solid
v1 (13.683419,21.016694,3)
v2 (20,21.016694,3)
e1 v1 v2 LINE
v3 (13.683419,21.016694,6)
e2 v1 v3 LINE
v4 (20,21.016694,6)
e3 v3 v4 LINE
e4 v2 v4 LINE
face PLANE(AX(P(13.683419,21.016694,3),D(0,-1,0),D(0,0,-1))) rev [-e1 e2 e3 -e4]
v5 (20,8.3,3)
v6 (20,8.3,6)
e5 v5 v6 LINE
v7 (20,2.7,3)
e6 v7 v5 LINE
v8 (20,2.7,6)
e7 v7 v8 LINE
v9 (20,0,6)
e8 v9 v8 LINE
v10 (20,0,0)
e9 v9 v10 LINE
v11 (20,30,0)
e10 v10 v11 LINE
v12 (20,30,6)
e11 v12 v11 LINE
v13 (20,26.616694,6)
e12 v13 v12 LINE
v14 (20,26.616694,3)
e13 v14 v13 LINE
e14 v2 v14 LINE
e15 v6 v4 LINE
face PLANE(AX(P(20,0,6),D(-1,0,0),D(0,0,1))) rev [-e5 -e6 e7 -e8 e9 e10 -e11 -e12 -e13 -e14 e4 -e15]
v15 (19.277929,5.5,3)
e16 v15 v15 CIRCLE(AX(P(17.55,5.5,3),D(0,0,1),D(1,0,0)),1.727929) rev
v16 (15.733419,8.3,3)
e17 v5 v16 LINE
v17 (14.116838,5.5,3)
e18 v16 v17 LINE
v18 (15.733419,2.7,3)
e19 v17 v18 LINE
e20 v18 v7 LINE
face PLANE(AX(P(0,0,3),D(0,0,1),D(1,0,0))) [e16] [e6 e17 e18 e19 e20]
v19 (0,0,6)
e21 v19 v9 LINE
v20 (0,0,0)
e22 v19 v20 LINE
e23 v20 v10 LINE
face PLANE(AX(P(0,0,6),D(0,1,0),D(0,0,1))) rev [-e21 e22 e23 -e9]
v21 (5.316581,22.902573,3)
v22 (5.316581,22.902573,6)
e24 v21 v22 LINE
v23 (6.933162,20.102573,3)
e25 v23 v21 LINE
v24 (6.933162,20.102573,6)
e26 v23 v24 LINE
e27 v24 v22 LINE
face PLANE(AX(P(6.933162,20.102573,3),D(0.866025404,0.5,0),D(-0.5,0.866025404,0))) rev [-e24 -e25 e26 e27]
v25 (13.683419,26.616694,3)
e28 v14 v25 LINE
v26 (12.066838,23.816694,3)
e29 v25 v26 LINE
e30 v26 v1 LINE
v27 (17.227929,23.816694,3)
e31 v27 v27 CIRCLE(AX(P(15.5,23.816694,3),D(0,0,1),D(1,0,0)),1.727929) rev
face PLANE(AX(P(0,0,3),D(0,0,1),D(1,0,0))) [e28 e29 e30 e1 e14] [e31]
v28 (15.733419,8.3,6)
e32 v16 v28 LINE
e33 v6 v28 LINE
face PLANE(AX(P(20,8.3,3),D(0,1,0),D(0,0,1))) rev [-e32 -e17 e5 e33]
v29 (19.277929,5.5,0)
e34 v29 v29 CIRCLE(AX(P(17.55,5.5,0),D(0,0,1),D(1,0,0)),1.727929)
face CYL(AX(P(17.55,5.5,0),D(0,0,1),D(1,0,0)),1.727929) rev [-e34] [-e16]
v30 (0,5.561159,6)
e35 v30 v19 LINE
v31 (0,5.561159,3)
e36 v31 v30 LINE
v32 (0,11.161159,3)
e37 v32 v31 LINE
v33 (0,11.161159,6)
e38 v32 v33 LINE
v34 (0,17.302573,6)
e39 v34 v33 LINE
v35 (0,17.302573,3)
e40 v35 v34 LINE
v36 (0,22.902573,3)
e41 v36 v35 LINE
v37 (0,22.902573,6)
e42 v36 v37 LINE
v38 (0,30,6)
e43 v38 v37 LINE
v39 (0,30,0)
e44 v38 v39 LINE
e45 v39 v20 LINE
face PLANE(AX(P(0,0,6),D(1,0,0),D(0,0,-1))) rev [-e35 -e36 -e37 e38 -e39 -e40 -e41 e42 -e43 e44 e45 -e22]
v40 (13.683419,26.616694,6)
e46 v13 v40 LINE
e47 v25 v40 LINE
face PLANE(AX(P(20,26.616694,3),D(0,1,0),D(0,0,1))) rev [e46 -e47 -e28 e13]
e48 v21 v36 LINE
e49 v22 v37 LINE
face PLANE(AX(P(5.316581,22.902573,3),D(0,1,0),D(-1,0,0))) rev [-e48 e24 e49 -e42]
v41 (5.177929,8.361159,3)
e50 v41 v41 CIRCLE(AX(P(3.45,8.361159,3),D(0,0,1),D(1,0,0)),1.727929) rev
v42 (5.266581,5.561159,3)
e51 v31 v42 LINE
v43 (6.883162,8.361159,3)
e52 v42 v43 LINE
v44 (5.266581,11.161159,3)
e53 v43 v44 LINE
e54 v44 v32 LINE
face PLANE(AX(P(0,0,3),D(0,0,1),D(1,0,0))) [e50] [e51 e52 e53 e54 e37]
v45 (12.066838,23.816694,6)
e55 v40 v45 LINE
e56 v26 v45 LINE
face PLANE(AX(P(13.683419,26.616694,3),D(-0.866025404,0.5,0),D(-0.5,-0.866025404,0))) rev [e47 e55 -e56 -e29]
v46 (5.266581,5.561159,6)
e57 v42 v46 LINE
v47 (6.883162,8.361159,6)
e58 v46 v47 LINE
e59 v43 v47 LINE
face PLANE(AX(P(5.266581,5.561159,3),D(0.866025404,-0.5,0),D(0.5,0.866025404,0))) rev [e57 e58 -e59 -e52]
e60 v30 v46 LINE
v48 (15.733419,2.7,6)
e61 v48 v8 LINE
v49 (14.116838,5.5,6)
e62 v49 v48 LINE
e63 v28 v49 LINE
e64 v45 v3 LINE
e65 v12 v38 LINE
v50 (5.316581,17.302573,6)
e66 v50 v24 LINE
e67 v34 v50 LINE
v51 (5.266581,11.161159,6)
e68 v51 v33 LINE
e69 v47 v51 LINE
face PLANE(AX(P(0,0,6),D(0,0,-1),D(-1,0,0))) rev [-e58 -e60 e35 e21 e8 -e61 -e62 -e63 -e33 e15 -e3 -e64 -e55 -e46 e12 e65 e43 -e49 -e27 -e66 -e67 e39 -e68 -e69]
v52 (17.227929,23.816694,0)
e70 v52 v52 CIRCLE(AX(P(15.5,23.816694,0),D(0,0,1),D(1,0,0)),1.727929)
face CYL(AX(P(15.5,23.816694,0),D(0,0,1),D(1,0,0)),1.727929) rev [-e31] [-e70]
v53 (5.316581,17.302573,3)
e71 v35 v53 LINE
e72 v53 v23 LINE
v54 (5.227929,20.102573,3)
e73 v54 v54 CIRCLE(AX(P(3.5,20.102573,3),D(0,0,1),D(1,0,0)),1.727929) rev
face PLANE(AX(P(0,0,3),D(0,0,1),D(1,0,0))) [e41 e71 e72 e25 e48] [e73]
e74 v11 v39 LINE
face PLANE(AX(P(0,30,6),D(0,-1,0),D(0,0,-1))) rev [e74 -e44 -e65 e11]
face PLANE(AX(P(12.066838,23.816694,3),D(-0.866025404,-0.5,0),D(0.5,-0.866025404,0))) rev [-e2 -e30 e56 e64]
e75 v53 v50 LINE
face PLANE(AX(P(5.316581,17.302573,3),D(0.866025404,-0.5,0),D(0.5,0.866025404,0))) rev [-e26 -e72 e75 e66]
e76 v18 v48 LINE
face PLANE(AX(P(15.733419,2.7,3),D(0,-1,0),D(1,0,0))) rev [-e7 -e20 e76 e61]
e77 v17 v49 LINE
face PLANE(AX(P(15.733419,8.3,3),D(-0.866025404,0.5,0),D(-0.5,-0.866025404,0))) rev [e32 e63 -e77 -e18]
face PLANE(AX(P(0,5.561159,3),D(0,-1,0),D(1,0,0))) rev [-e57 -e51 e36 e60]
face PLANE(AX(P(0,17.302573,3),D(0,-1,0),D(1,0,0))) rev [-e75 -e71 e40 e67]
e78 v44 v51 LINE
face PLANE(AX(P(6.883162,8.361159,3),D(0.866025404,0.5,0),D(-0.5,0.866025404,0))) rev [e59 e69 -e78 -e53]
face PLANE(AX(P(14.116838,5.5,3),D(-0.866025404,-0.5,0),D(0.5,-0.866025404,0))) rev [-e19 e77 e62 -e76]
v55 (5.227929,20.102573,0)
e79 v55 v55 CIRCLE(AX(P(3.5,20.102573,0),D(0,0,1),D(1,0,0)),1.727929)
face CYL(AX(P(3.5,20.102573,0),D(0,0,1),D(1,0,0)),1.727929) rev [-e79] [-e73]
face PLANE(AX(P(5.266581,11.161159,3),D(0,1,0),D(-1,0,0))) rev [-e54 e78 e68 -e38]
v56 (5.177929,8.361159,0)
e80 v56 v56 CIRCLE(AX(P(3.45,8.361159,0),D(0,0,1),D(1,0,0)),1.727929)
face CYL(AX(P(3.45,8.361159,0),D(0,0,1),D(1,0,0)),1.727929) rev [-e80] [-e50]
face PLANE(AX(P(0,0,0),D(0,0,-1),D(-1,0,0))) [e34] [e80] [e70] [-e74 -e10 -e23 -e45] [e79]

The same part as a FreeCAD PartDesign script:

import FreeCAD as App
import Part
import Sketcher
Q = App.Units.Quantity


def add_polygon(sketch, points):
    """Adds a closed chain of lines whose ends are joined by coincident constraints."""
    first, n = sketch.GeometryCount, len(points)
    for a, b in zip(points, points[1:] + points[:1]):
        sketch.addGeometry(Part.LineSegment(App.Vector(*a, 0), App.Vector(*b, 0)), False)
    for i in range(n):
        sketch.addConstraint(Sketcher.Constraint("Coincident", first + i, 2, first + (i + 1) % n, 1))

doc = App.newDocument("Part")
body = doc.addObject("PartDesign::Body", "Body")

# Sketch on XY plane
sketch1 = body.newObject("Sketcher::SketchObject", "Sketch")
sketch1.AttachmentSupport = (doc.getObject("XY_Plane"), [""])
sketch1.MapMode = "FlatFace"
add_polygon(sketch1, [(0, 30), (0, 0), (20, 0), (20, 30)])  # lines 0-3
sketch1.addConstraint([
    Sketcher.Constraint("Vertical", 0),
    Sketcher.Constraint("Horizontal", 1),
    Sketcher.Constraint("Vertical", 2),
    Sketcher.Constraint("Horizontal", 3),
    Sketcher.Constraint("Coincident", 0, 2, -1, 1),
    Sketcher.Constraint("DistanceX", 1, 1, 1, 2, 20.0),
    Sketcher.Constraint("DistanceY", 0, 2, 0, 1, 30.0),
])
pad1 = body.newObject("PartDesign::Pad", "Pad")
pad1.Profile = sketch1
pad1.Length = 6

# Sketch on XY plane
sketch2 = body.newObject("Sketcher::SketchObject", "Sketch001")
sketch2.AttachmentSupport = (doc.getObject("XY_Plane"), [""])
sketch2.MapMode = "FlatFace"
sketch2.AttachmentOffset = App.Placement(App.Vector(0, 0, 6), App.Rotation())
sketch2.addGeometry([
    Part.Circle(App.Vector(15.5, 23.8, 0), App.Vector(0, 0, 1), 1.7),
    Part.Circle(App.Vector(3.5, 20.1, 0), App.Vector(0, 0, 1), 1.7),
    Part.Circle(App.Vector(17.6, 5.5, 0), App.Vector(0, 0, 1), 1.7),
    Part.Circle(App.Vector(3.5, 8.4, 0), App.Vector(0, 0, 1), 1.7),
], False)
sketch2.addConstraint([
    Sketcher.Constraint("Equal", 0, 1),
    Sketcher.Constraint("Equal", 1, 2),
    Sketcher.Constraint("Equal", 2, 3),
    Sketcher.Constraint("DistanceX", 1, 3, 0, 3, 12.0),
    Sketcher.Constraint("DistanceX", -1, 1, 0, 3, 15.5),
    Sketcher.Constraint("DistanceY", -1, 1, 2, 3, 5.5),
    Sketcher.Constraint("DistanceX", 3, 3, 2, 3, 14.1),
    Sketcher.Constraint("Diameter", 0, 3.455859),
    Sketcher.Constraint("DistanceX", -1, 1, 2, 3, 17.55),
    Sketcher.Constraint("DistanceY", -1, 1, 3, 3, 8.361159),
    Sketcher.Constraint("DistanceY", 1, 3, 0, 3, 3.714121),
    Sketcher.Constraint("DistanceY", -1, 1, 0, 3, 23.816694),
])
pocket1 = body.newObject("PartDesign::Pocket", "Pocket")
pocket1.Profile = sketch2
pocket1.Type = "ThroughAll"

# Sketch on XY plane
sketch3 = body.newObject("Sketcher::SketchObject", "Sketch002")
sketch3.AttachmentSupport = (doc.getObject("XY_Plane"), [""])
sketch3.MapMode = "FlatFace"
sketch3.AttachmentOffset = App.Placement(App.Vector(0, 0, 6), App.Rotation())
add_polygon(sketch3, [(20, 26.6), (13.7, 26.6), (12.1, 23.8), (13.7, 21), (20, 21)])  # lines 0-4
add_polygon(sketch3, [(6.9, 20.1), (5.3, 22.9), (0, 22.9), (0, 17.3), (5.3, 17.3)])  # lines 5-9
add_polygon(sketch3, [(6.9, 8.4), (5.3, 11.2), (0, 11.2), (0, 5.6), (5.3, 5.6)])  # lines 10-14
add_polygon(sketch3, [(14.1, 5.5), (15.7, 2.7), (20, 2.7), (20, 8.3), (15.7, 8.3)])  # lines 15-19
sketch3.addConstraint([
    Sketcher.Constraint("Horizontal", 0),
    Sketcher.Constraint("Horizontal", 3),
    Sketcher.Constraint("Vertical", 4),
    Sketcher.Constraint("Horizontal", 6),
    Sketcher.Constraint("Vertical", 7),
    Sketcher.Constraint("Horizontal", 8),
    Sketcher.Constraint("Horizontal", 11),
    Sketcher.Constraint("Vertical", 12),
    Sketcher.Constraint("Horizontal", 13),
    Sketcher.Constraint("Horizontal", 16),
    Sketcher.Constraint("Vertical", 17),
    Sketcher.Constraint("Horizontal", 18),
    Sketcher.Constraint("PointOnObject", 6, 2, -2),
    Sketcher.Constraint("PointOnObject", 11, 2, -2),
    Sketcher.Constraint("Parallel", 2, 5),
    Sketcher.Constraint("Parallel", 1, 9),
    Sketcher.Constraint("Parallel", 5, 10),
    Sketcher.Constraint("Parallel", 9, 14),
    Sketcher.Constraint("Parallel", 10, 15),
    Sketcher.Constraint("Parallel", 14, 19),
    Sketcher.Constraint("Vertical", 0, 2, 2, 2),
    Sketcher.Constraint("Vertical", 5, 2, 8, 2),
    Sketcher.Constraint("Vertical", 10, 2, 13, 2),
    Sketcher.Constraint("Vertical", 4, 2, 16, 2),
    Sketcher.Constraint("Vertical", 15, 2, 18, 2),
    Sketcher.Constraint("Equal", 4, 7),
    Sketcher.Constraint("Equal", 7, 12),
    Sketcher.Constraint("Equal", 12, 17),
    Sketcher.Constraint("Equal", 1, 2),
    Sketcher.Constraint("Angle", 1, Q("-120 deg")),
    Sketcher.Constraint("DistanceY", 4, 1, 4, 2, 5.6),
    Sketcher.Constraint("DistanceX", -1, 1, 3, 2, 20.0),
    Sketcher.Constraint("DistanceY", -1, 1, 15, 2, 2.7),
    Sketcher.Constraint("DistanceX", 10, 2, 8, 2, 0.05),
    Sketcher.Constraint("DistanceX", 0, 2, 0, 1, 6.316581),
    Sketcher.Constraint("DistanceX", 6, 2, 6, 1, 5.316581),
    Sketcher.Constraint("DistanceX", 16, 1, 16, 2, 4.266581),
    Sketcher.Constraint("DistanceY", -1, 1, 10, 2, 11.161159),
    Sketcher.Constraint("DistanceY", 5, 2, 1, 2, 0.914121),
    Sketcher.Constraint("DistanceY", -1, 1, 0, 2, 26.616694),
])
pocket2 = body.newObject("PartDesign::Pocket", "Pocket001")
pocket2.Profile = sketch3
pocket2.Length = 3

doc.recompute()
